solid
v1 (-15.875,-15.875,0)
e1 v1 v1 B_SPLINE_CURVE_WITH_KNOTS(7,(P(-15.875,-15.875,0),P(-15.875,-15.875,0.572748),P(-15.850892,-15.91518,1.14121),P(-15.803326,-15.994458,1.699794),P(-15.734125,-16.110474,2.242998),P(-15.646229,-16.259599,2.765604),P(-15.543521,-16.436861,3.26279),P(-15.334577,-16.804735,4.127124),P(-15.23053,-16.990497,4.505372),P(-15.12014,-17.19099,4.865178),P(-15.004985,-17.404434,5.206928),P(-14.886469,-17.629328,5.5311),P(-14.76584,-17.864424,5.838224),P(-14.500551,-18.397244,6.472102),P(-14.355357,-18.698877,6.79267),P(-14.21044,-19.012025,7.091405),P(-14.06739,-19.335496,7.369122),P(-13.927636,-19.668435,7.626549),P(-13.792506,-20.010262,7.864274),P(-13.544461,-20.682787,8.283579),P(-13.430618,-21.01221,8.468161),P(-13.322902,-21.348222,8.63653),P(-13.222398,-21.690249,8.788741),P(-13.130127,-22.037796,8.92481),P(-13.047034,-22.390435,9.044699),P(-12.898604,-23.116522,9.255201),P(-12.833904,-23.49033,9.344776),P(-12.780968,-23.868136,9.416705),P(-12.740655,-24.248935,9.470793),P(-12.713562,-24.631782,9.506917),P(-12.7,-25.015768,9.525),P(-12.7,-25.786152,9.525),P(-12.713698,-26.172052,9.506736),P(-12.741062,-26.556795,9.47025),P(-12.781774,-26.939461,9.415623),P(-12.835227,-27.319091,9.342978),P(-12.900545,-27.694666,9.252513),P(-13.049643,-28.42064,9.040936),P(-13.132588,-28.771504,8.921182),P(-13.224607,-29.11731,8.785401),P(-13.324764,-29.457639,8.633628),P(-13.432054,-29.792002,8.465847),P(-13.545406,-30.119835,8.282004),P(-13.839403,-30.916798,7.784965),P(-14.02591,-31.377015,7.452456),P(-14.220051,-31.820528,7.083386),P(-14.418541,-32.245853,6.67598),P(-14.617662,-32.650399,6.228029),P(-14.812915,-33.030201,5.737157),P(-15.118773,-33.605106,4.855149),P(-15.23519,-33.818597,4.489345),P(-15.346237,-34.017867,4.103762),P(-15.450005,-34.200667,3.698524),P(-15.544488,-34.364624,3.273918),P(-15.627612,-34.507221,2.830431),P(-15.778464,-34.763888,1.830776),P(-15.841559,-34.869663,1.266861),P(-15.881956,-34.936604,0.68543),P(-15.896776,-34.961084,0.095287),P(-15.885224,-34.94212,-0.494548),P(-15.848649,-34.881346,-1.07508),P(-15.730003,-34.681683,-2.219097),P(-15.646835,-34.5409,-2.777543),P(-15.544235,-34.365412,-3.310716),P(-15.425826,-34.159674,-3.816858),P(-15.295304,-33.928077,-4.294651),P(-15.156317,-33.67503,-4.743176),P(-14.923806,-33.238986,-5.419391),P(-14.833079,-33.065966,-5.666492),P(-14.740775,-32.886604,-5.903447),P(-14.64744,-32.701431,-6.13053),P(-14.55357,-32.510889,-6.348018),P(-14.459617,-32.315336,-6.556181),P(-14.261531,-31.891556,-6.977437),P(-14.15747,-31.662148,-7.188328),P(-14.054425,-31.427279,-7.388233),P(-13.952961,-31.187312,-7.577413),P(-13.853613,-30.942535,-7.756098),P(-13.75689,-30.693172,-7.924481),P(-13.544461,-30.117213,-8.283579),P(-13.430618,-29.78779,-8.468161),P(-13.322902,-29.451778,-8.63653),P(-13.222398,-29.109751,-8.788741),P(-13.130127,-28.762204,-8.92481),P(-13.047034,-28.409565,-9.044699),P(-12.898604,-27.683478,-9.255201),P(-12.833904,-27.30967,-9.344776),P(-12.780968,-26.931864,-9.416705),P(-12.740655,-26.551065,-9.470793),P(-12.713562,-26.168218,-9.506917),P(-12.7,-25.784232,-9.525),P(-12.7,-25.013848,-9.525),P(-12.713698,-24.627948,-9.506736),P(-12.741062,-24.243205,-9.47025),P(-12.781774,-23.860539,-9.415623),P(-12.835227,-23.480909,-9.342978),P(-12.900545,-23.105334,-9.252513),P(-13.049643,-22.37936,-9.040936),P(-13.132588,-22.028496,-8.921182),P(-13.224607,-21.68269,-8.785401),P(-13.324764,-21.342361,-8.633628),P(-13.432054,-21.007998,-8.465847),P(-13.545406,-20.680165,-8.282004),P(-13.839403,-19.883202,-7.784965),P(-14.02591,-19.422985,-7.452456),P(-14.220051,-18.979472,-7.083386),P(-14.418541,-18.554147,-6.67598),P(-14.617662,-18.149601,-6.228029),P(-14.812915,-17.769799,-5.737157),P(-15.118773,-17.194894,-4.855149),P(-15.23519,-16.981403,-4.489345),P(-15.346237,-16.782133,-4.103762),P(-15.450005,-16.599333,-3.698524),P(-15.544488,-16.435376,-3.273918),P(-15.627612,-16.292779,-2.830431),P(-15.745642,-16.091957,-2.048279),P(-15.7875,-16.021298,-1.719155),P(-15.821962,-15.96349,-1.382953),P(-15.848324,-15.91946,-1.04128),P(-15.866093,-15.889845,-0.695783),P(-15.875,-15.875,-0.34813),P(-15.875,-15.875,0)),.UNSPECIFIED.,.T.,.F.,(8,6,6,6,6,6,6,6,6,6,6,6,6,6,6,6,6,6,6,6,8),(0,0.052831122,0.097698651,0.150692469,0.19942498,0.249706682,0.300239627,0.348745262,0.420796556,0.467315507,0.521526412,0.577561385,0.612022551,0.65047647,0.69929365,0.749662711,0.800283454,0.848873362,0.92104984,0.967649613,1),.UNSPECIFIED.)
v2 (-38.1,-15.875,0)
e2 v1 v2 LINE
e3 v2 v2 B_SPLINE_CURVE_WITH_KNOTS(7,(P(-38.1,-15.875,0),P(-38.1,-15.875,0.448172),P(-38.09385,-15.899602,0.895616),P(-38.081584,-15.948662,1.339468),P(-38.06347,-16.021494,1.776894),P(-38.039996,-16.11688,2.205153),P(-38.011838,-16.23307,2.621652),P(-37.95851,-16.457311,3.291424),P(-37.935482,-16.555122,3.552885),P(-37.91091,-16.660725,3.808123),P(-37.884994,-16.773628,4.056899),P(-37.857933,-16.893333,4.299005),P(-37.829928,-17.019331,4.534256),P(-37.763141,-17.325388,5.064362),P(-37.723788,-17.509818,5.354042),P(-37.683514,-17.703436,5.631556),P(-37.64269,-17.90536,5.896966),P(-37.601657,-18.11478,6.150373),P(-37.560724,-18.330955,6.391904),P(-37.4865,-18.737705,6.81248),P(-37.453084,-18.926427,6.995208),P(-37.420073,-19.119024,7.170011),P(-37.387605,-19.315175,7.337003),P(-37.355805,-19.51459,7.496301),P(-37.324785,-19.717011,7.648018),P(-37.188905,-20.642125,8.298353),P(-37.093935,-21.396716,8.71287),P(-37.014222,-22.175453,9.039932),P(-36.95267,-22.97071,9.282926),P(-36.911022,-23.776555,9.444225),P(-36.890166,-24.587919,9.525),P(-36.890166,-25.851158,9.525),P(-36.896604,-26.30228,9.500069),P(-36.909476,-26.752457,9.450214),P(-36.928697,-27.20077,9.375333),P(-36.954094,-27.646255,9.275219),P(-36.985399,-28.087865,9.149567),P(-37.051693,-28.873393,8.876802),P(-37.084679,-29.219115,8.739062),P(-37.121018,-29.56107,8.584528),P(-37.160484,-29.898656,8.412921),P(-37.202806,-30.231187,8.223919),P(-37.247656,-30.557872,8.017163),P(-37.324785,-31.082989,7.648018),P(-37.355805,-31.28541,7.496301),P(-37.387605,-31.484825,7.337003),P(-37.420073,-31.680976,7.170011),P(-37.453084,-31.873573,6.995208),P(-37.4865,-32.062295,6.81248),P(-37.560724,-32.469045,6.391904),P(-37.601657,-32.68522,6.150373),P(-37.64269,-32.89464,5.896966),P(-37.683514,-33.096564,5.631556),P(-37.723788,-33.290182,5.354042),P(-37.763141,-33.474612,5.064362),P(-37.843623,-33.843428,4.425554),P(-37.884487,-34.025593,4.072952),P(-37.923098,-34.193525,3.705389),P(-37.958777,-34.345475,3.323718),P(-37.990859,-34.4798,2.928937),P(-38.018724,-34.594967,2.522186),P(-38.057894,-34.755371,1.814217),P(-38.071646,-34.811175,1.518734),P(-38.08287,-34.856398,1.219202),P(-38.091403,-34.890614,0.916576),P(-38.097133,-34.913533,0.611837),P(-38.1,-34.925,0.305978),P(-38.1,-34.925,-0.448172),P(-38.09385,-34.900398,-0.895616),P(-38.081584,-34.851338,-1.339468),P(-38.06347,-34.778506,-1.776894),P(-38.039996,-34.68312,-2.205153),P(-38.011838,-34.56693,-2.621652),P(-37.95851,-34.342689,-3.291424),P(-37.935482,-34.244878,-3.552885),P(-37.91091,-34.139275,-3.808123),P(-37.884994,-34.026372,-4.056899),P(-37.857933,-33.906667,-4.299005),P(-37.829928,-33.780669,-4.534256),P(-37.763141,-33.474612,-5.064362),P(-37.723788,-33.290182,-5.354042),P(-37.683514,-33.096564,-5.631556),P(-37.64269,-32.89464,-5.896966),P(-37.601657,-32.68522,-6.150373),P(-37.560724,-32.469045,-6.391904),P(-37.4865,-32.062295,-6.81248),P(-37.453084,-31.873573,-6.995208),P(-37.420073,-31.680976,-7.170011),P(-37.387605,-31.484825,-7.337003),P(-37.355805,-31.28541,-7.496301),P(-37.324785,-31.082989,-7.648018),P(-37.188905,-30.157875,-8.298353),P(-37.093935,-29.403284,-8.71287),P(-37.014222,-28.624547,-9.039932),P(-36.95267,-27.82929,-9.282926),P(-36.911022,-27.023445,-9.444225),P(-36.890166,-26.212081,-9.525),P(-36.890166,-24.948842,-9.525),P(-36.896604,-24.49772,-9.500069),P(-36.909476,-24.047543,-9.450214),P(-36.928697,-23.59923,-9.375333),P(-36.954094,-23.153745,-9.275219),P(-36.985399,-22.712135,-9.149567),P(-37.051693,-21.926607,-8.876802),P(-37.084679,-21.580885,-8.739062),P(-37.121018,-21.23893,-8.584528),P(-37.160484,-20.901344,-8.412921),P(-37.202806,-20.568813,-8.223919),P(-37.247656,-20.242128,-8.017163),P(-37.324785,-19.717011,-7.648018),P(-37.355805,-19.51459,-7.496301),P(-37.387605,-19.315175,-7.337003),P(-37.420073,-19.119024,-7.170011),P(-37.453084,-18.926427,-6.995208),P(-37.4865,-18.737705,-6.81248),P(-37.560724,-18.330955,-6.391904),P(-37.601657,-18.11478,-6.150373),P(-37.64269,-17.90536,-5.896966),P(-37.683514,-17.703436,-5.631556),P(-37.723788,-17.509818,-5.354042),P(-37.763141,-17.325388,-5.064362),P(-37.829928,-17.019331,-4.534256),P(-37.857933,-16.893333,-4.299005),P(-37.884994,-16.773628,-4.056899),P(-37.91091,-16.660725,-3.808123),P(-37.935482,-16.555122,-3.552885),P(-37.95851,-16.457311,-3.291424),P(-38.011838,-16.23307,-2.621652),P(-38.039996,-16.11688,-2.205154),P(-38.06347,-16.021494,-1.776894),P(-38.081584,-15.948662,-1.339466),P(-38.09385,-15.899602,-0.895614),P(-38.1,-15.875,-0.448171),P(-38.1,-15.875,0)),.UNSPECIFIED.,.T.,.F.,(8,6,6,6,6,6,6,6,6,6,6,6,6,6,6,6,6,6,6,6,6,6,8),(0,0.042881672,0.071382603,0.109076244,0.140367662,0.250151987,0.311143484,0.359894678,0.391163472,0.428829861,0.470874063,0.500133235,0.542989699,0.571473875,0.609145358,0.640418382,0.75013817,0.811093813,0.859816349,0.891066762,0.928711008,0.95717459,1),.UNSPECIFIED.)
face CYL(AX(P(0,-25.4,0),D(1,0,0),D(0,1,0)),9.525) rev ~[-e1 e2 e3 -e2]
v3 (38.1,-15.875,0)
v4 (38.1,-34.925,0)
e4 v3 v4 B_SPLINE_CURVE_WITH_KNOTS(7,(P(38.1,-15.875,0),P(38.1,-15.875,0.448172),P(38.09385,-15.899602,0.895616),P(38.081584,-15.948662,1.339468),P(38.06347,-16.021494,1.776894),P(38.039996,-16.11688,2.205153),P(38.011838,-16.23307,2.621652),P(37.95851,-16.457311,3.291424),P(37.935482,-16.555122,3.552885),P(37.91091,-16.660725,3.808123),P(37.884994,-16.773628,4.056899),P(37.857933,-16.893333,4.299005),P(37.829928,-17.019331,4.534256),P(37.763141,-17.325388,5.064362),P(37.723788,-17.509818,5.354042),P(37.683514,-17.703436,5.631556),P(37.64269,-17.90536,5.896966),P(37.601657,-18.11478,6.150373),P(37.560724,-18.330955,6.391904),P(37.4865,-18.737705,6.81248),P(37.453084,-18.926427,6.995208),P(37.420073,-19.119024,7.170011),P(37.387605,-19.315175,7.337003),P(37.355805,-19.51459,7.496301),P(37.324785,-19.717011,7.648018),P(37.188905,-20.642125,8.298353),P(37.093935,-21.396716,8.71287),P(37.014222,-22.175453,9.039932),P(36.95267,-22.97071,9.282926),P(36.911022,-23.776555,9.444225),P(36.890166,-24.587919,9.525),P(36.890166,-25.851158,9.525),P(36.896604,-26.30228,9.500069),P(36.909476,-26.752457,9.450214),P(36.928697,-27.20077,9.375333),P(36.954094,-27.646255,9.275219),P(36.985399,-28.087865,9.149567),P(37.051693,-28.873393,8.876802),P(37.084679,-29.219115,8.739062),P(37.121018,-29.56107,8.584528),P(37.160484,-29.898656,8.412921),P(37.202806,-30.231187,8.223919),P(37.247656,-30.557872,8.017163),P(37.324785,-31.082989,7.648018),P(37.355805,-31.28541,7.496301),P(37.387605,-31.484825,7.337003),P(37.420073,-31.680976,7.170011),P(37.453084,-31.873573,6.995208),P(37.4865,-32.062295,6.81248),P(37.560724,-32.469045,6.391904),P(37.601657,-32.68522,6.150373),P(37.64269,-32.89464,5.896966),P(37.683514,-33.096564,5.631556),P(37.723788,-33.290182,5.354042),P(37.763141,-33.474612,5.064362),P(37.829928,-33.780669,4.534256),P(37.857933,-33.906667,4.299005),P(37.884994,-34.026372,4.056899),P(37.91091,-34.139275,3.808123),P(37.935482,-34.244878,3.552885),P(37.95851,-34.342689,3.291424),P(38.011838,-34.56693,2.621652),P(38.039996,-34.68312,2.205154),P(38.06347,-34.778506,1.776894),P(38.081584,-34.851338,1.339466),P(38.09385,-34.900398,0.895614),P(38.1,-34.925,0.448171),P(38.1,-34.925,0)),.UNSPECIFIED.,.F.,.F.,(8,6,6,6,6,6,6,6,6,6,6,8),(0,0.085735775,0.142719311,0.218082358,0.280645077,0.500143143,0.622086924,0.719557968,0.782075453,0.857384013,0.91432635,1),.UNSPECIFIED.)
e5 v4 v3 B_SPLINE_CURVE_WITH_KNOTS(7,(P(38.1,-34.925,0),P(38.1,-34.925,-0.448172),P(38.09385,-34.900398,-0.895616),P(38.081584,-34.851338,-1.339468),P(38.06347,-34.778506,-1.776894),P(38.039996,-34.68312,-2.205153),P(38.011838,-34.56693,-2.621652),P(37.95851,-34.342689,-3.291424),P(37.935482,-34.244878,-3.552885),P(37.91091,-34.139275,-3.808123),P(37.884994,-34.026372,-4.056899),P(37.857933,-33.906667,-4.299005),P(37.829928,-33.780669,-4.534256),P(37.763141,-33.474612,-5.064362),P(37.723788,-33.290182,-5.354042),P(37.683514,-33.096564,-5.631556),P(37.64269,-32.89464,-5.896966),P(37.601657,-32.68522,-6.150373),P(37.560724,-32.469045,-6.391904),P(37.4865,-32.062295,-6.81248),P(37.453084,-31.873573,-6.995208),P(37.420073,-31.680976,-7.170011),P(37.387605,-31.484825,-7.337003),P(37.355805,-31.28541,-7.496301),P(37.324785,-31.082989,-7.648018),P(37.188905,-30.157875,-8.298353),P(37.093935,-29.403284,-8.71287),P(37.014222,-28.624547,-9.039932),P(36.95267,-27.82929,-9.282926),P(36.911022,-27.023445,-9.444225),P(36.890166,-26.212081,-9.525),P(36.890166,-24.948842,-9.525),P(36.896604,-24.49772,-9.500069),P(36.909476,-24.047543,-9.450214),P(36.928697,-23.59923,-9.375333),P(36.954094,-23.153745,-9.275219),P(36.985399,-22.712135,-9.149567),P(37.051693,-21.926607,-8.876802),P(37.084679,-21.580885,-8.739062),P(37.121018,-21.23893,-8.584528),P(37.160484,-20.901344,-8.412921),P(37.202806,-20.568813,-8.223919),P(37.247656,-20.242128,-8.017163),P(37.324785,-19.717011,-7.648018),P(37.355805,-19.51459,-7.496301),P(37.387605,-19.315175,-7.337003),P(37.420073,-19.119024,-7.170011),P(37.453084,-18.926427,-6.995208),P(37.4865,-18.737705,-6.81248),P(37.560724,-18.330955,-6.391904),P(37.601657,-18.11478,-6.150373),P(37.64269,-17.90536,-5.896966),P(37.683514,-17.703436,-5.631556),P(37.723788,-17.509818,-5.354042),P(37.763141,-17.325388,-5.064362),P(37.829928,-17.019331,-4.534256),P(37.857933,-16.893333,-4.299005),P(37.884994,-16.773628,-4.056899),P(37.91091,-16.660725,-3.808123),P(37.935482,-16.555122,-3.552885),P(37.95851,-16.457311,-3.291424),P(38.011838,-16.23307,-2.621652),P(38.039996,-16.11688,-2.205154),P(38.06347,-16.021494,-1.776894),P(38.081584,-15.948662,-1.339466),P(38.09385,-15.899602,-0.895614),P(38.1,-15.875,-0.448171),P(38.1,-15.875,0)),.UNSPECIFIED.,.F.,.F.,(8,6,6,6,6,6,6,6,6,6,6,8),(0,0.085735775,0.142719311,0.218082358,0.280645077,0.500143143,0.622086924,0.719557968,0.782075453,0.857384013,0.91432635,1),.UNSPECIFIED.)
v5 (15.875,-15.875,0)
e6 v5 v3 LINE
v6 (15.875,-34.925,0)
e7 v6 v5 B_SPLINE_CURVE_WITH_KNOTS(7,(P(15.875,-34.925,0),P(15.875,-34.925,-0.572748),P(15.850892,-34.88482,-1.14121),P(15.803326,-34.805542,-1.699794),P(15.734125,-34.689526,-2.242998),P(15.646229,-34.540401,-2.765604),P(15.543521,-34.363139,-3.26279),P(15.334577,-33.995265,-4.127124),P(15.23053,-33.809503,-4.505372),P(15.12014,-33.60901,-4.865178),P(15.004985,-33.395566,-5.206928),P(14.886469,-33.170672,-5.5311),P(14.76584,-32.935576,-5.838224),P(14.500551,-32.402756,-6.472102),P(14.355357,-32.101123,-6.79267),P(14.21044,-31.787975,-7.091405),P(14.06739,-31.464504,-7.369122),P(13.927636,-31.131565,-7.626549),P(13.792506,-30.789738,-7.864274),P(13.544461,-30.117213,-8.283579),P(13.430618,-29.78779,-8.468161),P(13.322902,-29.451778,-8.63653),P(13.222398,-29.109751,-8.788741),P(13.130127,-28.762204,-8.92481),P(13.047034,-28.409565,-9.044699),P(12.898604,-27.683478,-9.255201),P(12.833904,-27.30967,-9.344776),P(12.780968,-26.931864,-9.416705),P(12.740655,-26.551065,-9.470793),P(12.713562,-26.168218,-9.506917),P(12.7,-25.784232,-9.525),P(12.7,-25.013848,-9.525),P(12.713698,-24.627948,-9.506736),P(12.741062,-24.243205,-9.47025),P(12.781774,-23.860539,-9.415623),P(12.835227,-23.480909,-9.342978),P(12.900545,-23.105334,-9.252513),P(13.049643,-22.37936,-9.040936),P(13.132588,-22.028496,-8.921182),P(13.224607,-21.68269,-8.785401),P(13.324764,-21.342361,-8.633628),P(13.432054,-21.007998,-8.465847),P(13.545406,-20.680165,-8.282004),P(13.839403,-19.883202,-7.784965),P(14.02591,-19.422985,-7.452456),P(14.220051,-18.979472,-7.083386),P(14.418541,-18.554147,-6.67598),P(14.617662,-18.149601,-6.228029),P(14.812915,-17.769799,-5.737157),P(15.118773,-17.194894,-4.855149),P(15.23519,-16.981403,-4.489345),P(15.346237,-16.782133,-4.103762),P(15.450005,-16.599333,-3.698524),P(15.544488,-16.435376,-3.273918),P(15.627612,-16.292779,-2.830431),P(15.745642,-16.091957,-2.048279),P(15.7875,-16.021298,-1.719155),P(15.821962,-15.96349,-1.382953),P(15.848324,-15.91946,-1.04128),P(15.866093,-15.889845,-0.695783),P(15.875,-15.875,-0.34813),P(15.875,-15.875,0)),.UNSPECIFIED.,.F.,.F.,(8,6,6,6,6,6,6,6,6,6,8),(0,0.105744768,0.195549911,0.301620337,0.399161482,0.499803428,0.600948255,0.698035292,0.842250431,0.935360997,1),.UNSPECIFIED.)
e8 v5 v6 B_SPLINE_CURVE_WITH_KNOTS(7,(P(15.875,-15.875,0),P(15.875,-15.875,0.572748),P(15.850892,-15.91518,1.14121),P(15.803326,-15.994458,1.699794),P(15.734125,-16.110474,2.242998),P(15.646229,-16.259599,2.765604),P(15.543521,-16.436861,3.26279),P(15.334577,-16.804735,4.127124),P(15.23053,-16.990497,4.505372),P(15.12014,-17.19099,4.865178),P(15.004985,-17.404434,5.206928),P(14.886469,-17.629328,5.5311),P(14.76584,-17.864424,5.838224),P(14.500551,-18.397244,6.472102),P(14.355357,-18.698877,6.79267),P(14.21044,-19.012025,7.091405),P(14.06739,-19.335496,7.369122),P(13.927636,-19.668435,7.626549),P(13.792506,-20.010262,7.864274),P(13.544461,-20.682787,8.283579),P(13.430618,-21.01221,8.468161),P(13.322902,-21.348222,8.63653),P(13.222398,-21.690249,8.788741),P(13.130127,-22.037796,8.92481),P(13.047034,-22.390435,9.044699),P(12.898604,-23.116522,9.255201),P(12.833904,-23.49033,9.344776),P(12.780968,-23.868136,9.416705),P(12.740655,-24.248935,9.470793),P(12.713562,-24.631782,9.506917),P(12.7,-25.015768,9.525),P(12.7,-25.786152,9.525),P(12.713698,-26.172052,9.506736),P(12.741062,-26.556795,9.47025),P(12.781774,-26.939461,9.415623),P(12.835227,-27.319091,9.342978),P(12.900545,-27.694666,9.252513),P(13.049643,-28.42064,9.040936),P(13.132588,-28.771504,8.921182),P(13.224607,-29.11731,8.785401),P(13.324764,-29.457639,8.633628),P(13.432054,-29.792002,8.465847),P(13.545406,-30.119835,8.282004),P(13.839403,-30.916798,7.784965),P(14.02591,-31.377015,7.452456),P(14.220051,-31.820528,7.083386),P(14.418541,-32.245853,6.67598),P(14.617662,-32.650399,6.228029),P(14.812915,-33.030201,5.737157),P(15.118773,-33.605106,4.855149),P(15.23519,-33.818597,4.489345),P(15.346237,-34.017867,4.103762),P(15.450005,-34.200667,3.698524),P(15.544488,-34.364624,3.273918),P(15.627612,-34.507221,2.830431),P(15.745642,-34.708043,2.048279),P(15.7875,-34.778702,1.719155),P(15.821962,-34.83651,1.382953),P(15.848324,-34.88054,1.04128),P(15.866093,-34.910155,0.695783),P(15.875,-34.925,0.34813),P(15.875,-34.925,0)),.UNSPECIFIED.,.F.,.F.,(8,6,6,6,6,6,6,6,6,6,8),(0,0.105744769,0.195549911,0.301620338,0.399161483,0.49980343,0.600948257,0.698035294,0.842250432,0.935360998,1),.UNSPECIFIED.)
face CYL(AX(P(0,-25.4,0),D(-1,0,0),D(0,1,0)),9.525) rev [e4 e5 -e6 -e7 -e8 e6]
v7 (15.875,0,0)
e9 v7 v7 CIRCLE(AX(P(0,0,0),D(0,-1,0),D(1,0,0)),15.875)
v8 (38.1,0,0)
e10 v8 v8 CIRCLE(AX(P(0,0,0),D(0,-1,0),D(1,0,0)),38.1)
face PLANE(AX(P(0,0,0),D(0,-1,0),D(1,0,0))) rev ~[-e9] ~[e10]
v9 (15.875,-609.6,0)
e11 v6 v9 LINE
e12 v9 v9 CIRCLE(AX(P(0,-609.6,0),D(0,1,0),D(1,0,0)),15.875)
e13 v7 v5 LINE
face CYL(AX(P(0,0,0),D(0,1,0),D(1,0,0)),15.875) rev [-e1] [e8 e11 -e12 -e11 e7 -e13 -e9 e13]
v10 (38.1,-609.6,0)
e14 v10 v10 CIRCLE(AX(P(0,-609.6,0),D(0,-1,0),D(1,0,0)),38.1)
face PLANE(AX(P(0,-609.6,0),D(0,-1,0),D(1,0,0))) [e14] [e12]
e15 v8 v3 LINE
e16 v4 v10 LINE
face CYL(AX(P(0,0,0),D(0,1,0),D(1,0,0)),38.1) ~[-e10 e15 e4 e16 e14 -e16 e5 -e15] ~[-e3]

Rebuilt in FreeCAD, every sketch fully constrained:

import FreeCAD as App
import Part
import Sketcher

V = App.Vector
Q = App.Units.Quantity

doc = App.newDocument("Part")
params = doc.addObject("Spreadsheet::Sheet", "Params")
for row, (alias, value) in enumerate([
    ("sketch1_diameter", "3 in"),
    ("pad1_length", "24 in"),
    ("sketch2_diameter", "0.75 in"),
    ("sketch3_diameter", "1.25 in"),
], start=1):
    params.set(f"A{row}", alias)
    params.set(f"B{row}", "=" + value)
    params.setAlias(f"B{row}", alias)

body = doc.addObject("PartDesign::Body", "Body")

# Sketch on XZ plane
sketch1 = body.newObject("Sketcher::SketchObject", "Sketch")
sketch1.AttachmentSupport = (doc.getObject("XZ_Plane"), [""])
sketch1.MapMode = "FlatFace"
sketch1.addGeometry(Part.Circle(V(0, 0, 0), V(0, 0, 1), 38), False)
sketch1.addConstraint([
    Sketcher.Constraint("Coincident", 0, 3, -1, 1),
    Sketcher.Constraint("Diameter", 0, Q("3 in")),
])
sketch1.setExpression("Constraints[1]", "Params.sketch1_diameter")
pad1 = body.newObject("PartDesign::Pad", "Pad")
pad1.Profile = sketch1
pad1.setExpression("Length", "Params.pad1_length")

# Sketch on YZ plane
sketch2 = body.newObject("Sketcher::SketchObject", "Sketch001")
sketch2.AttachmentSupport = (doc.getObject("YZ_Plane"), [""])
sketch2.MapMode = "FlatFace"
sketch2.addGeometry(Part.Circle(V(-25, 0, 0), V(0, 0, 1), 10), False)
sketch2.addConstraint([
    Sketcher.Constraint("PointOnObject", 0, 3, -1),
    Sketcher.Constraint("Diameter", 0, Q("0.75 in")),
    Sketcher.Constraint("DistanceX", 0, 3, -1, 1, Q("1 in")),
])
sketch2.setExpression("Constraints[1]", "Params.sketch2_diameter")
pocket1 = body.newObject("PartDesign::Pocket", "Pocket")
pocket1.Profile = sketch2
pocket1.Type = "ThroughAll"
pocket1.Midplane = True

# Sketch on XZ plane
sketch3 = body.newObject("Sketcher::SketchObject", "Sketch002")
sketch3.AttachmentSupport = (doc.getObject("XZ_Plane"), [""])
sketch3.MapMode = "FlatFace"
sketch3.addGeometry(Part.Circle(V(0, 0, 0), V(0, 0, 1), 16), False)
sketch3.addConstraint([
    Sketcher.Constraint("Coincident", 0, 3, -1, 1),
    Sketcher.Constraint("Diameter", 0, Q("1.25 in")),
])
sketch3.setExpression("Constraints[1]", "Params.sketch3_diameter")
pocket2 = body.newObject("PartDesign::Pocket", "Pocket001")
pocket2.Profile = sketch3
pocket2.Type = "ThroughAll"
pocket2.Reversed = True

doc.recompute()
